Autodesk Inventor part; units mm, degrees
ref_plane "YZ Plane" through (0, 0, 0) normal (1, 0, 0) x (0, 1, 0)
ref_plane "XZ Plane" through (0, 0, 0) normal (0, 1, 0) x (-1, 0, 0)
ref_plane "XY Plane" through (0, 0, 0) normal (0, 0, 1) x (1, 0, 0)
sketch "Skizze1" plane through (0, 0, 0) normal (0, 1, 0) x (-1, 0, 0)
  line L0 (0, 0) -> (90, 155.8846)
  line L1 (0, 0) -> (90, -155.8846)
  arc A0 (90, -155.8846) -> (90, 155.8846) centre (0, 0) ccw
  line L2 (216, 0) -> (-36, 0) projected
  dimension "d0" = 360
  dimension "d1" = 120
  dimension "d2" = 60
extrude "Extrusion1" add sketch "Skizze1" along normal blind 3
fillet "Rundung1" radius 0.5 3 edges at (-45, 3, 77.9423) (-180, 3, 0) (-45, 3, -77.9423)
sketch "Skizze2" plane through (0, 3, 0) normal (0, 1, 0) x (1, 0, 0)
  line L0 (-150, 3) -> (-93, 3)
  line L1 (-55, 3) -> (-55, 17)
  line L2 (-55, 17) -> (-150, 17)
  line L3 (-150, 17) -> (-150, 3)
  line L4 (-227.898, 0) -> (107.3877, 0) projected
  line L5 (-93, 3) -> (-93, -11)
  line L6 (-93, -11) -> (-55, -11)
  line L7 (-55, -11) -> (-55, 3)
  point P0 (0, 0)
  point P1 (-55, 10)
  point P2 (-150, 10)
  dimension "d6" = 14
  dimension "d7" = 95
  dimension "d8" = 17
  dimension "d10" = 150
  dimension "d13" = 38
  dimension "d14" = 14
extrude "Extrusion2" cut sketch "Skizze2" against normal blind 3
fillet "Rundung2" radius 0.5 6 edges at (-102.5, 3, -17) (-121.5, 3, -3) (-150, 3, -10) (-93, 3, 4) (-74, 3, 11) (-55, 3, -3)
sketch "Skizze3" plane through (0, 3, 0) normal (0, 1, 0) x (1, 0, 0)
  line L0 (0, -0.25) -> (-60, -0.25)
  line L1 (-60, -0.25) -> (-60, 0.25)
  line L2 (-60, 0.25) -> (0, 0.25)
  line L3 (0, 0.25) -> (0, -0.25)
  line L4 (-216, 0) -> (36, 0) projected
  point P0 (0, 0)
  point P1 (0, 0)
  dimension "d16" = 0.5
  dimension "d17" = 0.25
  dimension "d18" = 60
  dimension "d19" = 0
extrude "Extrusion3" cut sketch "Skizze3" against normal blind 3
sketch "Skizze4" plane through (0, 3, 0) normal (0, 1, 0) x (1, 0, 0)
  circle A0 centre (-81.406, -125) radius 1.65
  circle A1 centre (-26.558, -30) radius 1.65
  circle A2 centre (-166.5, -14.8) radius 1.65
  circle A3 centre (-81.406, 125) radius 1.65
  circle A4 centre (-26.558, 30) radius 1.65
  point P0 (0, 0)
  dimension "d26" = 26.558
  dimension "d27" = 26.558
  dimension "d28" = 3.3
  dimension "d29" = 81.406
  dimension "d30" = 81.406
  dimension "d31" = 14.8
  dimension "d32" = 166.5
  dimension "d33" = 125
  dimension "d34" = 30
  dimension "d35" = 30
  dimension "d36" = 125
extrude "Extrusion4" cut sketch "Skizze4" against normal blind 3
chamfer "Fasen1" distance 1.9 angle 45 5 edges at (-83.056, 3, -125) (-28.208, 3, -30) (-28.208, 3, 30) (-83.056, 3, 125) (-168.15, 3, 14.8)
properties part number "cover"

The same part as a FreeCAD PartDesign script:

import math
import FreeCAD as App
import Part
import Sketcher
from FreeCAD import Vector
Q = App.Units.Quantity


def edges_at(feature, points):
    """Names of the edges that pass closest to the given points."""
    edges = feature.Shape.Edges
    near = lambda p: min(range(len(edges)), key=lambda i: edges[i].distToShape(Part.Vertex(*p))[0])
    return sorted({f"Edge{near(p) + 1}" for p in points})

doc = App.newDocument("Part")
params = doc.addObject("Spreadsheet::Sheet", "Params")
for row, (alias, value) in enumerate([
    ("sketch1_radius", "180 mm"),
    ("pad1_length", "3 mm"),
    ("fillet_radius", "0.5 mm"),
    ("sketch2_width", "38 mm"),
    ("sketch2_width2", "95 mm"),
    ("sketch2_height", "14 mm"),
    ("pocket1_length", "3 mm"),
    ("fillet2_radius", "0.5 mm"),
    ("sketch3_width", "60 mm"),
    ("sketch3_height", "0.5 mm"),
    ("pocket2_length", "3 mm"),
    ("sketch4_diameter", "3.3 mm"),
    ("pocket3_length", "3 mm"),
    ("chamfer_size", "1.9 mm"),
], start=1):
    params.set(f"A{row}", alias)
    params.set(f"B{row}", "=" + value)
    params.setAlias(f"B{row}", alias)

body = doc.addObject("PartDesign::Body", "Body")

# Sketch on XZ plane
sketch1 = body.newObject("Sketcher::SketchObject", "Sketch")
sketch1.AttachmentSupport = (doc.getObject("XZ_Plane"), [""])
sketch1.MapMode = "FlatFace"
sketch1.addGeometry(Part.ArcOfCircle(Part.Circle(Vector(0, 0, 0), Vector(0, 0, 1), 180), math.radians(120), math.radians(240)), False)
sketch1.addGeometry(Part.LineSegment(Vector(-90, 156, 0), Vector(0, 0, 0)), False)
sketch1.addGeometry(Part.LineSegment(Vector(0, 0, 0), Vector(-90, -156, 0)), False)
sketch1.addConstraint(Sketcher.Constraint("Coincident", 0, 1, 1, 1))
sketch1.addConstraint(Sketcher.Constraint("Coincident", 1, 2, 2, 1))
sketch1.addConstraint(Sketcher.Constraint("Coincident", 2, 2, 0, 2))
sketch1.addConstraint(Sketcher.Constraint("Coincident", 0, 3, -1, 1))
sketch1.addConstraint(Sketcher.Constraint("Coincident", 1, 2, -1, 1))
sketch1.addConstraint(Sketcher.Constraint("Vertical", 0, 1, 2, 2))
sketch1.addConstraint(Sketcher.Constraint("Radius", 0, Q("180 mm")))
sketch1.addConstraint(Sketcher.Constraint("Angle", 1, Q("-60 deg")))
sketch1.setExpression("Constraints[6]", "Params.sketch1_radius")
pad1 = body.newObject("PartDesign::Pad", "Pad")
pad1.Profile = sketch1
pad1.setExpression("Length", "Params.pad1_length")
pad1.Reversed = True
doc.recompute()

fillet = body.newObject("PartDesign::Fillet", "Fillet")
fillet.Base = (pad1, edges_at(pad1, [(-45, 3, 77.942), (-180, 3, 0), (-45, 3, -77.942)]))
fillet.setExpression("Radius", "Params.fillet_radius")

# Sketch on XZ plane
sketch2 = body.newObject("Sketcher::SketchObject", "Sketch001")
sketch2.AttachmentSupport = (doc.getObject("XZ_Plane"), [""])
sketch2.MapMode = "FlatFace"
sketch2.AttachmentOffset = App.Placement(Vector(0, 0, -3), App.Rotation())
sketch2.addGeometry(Part.LineSegment(Vector(-150, -17, 0), Vector(-150, -3, 0)), False)
sketch2.addGeometry(Part.LineSegment(Vector(-150, -3, 0), Vector(-93, -3, 0)), False)
sketch2.addGeometry(Part.LineSegment(Vector(-93, -3, 0), Vector(-93, 11, 0)), False)
sketch2.addGeometry(Part.LineSegment(Vector(-93, 11, 0), Vector(-55, 11, 0)), False)
sketch2.addGeometry(Part.LineSegment(Vector(-55, 11, 0), Vector(-55, -17, 0)), False)
sketch2.addGeometry(Part.LineSegment(Vector(-55, -17, 0), Vector(-150, -17, 0)), False)
sketch2.addConstraint(Sketcher.Constraint("Coincident", 0, 2, 1, 1))
sketch2.addConstraint(Sketcher.Constraint("Coincident", 1, 2, 2, 1))
sketch2.addConstraint(Sketcher.Constraint("Coincident", 2, 2, 3, 1))
sketch2.addConstraint(Sketcher.Constraint("Coincident", 3, 2, 4, 1))
sketch2.addConstraint(Sketcher.Constraint("Coincident", 4, 2, 5, 1))
sketch2.addConstraint(Sketcher.Constraint("Coincident", 5, 2, 0, 1))
sketch2.addConstraint(Sketcher.Constraint("Vertical", 0))
sketch2.addConstraint(Sketcher.Constraint("Horizontal", 1))
sketch2.addConstraint(Sketcher.Constraint("Vertical", 2))
sketch2.addConstraint(Sketcher.Constraint("Horizontal", 3))
sketch2.addConstraint(Sketcher.Constraint("Vertical", 4))
sketch2.addConstraint(Sketcher.Constraint("Horizontal", 5))
sketch2.addConstraint(Sketcher.Constraint("Equal", 0, 2))
sketch2.addConstraint(Sketcher.Constraint("DistanceX", 3, 1, 3, 2, Q("38 mm")))
sketch2.addConstraint(Sketcher.Constraint("DistanceX", 5, 2, 5, 1, Q("95 mm")))
sketch2.addConstraint(Sketcher.Constraint("DistanceY", 0, 1, 0, 2, Q("14 mm")))
sketch2.addConstraint(Sketcher.Constraint("DistanceX", 0, 2, -1, 1, Q("150 mm")))
sketch2.addConstraint(Sketcher.Constraint("DistanceY", 4, 2, -1, 1, Q("17 mm")))
sketch2.setExpression("Constraints[13]", "Params.sketch2_width")
sketch2.setExpression("Constraints[14]", "Params.sketch2_width2")
sketch2.setExpression("Constraints[15]", "Params.sketch2_height")
pocket1 = body.newObject("PartDesign::Pocket", "Pocket")
pocket1.Profile = sketch2
pocket1.setExpression("Length", "Params.pocket1_length")
pocket1.Reversed = True
doc.recompute()

fillet2 = body.newObject("PartDesign::Fillet", "Fillet001")
fillet2.Base = (pocket1, edges_at(pocket1, [
    (-102.5, 3, -17),
    (-121.5, 3, -3),
    (-150, 3, -10),
    (-93, 3, 4),
    (-74, 3, 11),
    (-55, 3, -3),
]))
fillet2.setExpression("Radius", "Params.fillet2_radius")

# Sketch on XZ plane
sketch3 = body.newObject("Sketcher::SketchObject", "Sketch002")
sketch3.AttachmentSupport = (doc.getObject("XZ_Plane"), [""])
sketch3.MapMode = "FlatFace"
sketch3.AttachmentOffset = App.Placement(Vector(0, 0, -3), App.Rotation())
sketch3.addGeometry(Part.LineSegment(Vector(-60, 0.2, 0), Vector(0, 0.2, 0)), False)
sketch3.addGeometry(Part.LineSegment(Vector(0, 0.2, 0), Vector(0, -0.2, 0)), False)
sketch3.addGeometry(Part.LineSegment(Vector(0, -0.2, 0), Vector(-60, -0.2, 0)), False)
sketch3.addGeometry(Part.LineSegment(Vector(-60, -0.2, 0), Vector(-60, 0.2, 0)), False)
sketch3.addConstraint(Sketcher.Constraint("Coincident", 0, 2, 1, 1))
sketch3.addConstraint(Sketcher.Constraint("Coincident", 1, 2, 2, 1))
sketch3.addConstraint(Sketcher.Constraint("Coincident", 2, 2, 3, 1))
sketch3.addConstraint(Sketcher.Constraint("Coincident", 3, 2, 0, 1))
sketch3.addConstraint(Sketcher.Constraint("Horizontal", 0))
sketch3.addConstraint(Sketcher.Constraint("Vertical", 1))
sketch3.addConstraint(Sketcher.Constraint("Horizontal", 2))
sketch3.addConstraint(Sketcher.Constraint("Vertical", 3))
sketch3.addConstraint(Sketcher.Constraint("Symmetric", 0, 2, 1, 2, -1, 1))
sketch3.addConstraint(Sketcher.Constraint("DistanceX", 0, 1, 0, 2, Q("60 mm")))
sketch3.addConstraint(Sketcher.Constraint("DistanceY", 1, 2, 1, 1, Q("0.5 mm")))
sketch3.setExpression("Constraints[9]", "Params.sketch3_width")
sketch3.setExpression("Constraints[10]", "Params.sketch3_height")
pocket2 = body.newObject("PartDesign::Pocket", "Pocket001")
pocket2.Profile = sketch3
pocket2.setExpression("Length", "Params.pocket2_length")
pocket2.Reversed = True

# Sketch on XZ plane
sketch4 = body.newObject("Sketcher::SketchObject", "Sketch003")
sketch4.AttachmentSupport = (doc.getObject("XZ_Plane"), [""])
sketch4.MapMode = "FlatFace"
sketch4.AttachmentOffset = App.Placement(Vector(0, 0, -3), App.Rotation())
sketch4.addGeometry(Part.Circle(Vector(-81.4, 125, 0), Vector(0, 0, 1), 1.6), False)
sketch4.addGeometry(Part.Circle(Vector(-26.6, 30, 0), Vector(0, 0, 1), 1.6), False)
sketch4.addGeometry(Part.Circle(Vector(-166.5, 14.8, 0), Vector(0, 0, 1), 1.6), False)
sketch4.addGeometry(Part.Circle(Vector(-81.4, -125, 0), Vector(0, 0, 1), 1.6), False)
sketch4.addGeometry(Part.Circle(Vector(-26.6, -30, 0), Vector(0, 0, 1), 1.6), False)
sketch4.addConstraint(Sketcher.Constraint("Equal", 0, 1))
sketch4.addConstraint(Sketcher.Constraint("Equal", 1, 2))
sketch4.addConstraint(Sketcher.Constraint("Equal", 2, 3))
sketch4.addConstraint(Sketcher.Constraint("Equal", 3, 4))
sketch4.addConstraint(Sketcher.Constraint("Symmetric", 0, 3, 3, 3, -1))
sketch4.addConstraint(Sketcher.Constraint("Symmetric", 1, 3, 4, 3, -1))
sketch4.addConstraint(Sketcher.Constraint("Diameter", 0, Q("3.3 mm")))
sketch4.addConstraint(Sketcher.Constraint("DistanceY", -1, 1, 0, 3, Q("125 mm")))
sketch4.addConstraint(Sketcher.Constraint("DistanceY", -1, 1, 1, 3, Q("30 mm")))
sketch4.addConstraint(Sketcher.Constraint("DistanceX", 2, 3, -1, 1, Q("166.5 mm")))
sketch4.addConstraint(Sketcher.Constraint("DistanceY", -1, 1, 2, 3, Q("14.8 mm")))
sketch4.addConstraint(Sketcher.Constraint("DistanceX", 0, 3, -1, 1, Q("81.406 mm")))
sketch4.addConstraint(Sketcher.Constraint("DistanceX", 1, 3, -1, 1, Q("26.558 mm")))
sketch4.setExpression("Constraints[6]", "Params.sketch4_diameter")
pocket3 = body.newObject("PartDesign::Pocket", "Pocket002")
pocket3.Profile = sketch4
pocket3.setExpression("Length", "Params.pocket3_length")
pocket3.Reversed = True
doc.recompute()

chamfer = body.newObject("PartDesign::Chamfer", "Chamfer")
chamfer.Base = (pocket3, edges_at(pocket3, [
    (-83.056, 3, -125),
    (-28.208, 3, -30),
    (-28.208, 3, 30),
    (-83.056, 3, 125),
    (-168.15, 3, 14.8),
]))
chamfer.setExpression("Size", "Params.chamfer_size")

doc.recompute()
